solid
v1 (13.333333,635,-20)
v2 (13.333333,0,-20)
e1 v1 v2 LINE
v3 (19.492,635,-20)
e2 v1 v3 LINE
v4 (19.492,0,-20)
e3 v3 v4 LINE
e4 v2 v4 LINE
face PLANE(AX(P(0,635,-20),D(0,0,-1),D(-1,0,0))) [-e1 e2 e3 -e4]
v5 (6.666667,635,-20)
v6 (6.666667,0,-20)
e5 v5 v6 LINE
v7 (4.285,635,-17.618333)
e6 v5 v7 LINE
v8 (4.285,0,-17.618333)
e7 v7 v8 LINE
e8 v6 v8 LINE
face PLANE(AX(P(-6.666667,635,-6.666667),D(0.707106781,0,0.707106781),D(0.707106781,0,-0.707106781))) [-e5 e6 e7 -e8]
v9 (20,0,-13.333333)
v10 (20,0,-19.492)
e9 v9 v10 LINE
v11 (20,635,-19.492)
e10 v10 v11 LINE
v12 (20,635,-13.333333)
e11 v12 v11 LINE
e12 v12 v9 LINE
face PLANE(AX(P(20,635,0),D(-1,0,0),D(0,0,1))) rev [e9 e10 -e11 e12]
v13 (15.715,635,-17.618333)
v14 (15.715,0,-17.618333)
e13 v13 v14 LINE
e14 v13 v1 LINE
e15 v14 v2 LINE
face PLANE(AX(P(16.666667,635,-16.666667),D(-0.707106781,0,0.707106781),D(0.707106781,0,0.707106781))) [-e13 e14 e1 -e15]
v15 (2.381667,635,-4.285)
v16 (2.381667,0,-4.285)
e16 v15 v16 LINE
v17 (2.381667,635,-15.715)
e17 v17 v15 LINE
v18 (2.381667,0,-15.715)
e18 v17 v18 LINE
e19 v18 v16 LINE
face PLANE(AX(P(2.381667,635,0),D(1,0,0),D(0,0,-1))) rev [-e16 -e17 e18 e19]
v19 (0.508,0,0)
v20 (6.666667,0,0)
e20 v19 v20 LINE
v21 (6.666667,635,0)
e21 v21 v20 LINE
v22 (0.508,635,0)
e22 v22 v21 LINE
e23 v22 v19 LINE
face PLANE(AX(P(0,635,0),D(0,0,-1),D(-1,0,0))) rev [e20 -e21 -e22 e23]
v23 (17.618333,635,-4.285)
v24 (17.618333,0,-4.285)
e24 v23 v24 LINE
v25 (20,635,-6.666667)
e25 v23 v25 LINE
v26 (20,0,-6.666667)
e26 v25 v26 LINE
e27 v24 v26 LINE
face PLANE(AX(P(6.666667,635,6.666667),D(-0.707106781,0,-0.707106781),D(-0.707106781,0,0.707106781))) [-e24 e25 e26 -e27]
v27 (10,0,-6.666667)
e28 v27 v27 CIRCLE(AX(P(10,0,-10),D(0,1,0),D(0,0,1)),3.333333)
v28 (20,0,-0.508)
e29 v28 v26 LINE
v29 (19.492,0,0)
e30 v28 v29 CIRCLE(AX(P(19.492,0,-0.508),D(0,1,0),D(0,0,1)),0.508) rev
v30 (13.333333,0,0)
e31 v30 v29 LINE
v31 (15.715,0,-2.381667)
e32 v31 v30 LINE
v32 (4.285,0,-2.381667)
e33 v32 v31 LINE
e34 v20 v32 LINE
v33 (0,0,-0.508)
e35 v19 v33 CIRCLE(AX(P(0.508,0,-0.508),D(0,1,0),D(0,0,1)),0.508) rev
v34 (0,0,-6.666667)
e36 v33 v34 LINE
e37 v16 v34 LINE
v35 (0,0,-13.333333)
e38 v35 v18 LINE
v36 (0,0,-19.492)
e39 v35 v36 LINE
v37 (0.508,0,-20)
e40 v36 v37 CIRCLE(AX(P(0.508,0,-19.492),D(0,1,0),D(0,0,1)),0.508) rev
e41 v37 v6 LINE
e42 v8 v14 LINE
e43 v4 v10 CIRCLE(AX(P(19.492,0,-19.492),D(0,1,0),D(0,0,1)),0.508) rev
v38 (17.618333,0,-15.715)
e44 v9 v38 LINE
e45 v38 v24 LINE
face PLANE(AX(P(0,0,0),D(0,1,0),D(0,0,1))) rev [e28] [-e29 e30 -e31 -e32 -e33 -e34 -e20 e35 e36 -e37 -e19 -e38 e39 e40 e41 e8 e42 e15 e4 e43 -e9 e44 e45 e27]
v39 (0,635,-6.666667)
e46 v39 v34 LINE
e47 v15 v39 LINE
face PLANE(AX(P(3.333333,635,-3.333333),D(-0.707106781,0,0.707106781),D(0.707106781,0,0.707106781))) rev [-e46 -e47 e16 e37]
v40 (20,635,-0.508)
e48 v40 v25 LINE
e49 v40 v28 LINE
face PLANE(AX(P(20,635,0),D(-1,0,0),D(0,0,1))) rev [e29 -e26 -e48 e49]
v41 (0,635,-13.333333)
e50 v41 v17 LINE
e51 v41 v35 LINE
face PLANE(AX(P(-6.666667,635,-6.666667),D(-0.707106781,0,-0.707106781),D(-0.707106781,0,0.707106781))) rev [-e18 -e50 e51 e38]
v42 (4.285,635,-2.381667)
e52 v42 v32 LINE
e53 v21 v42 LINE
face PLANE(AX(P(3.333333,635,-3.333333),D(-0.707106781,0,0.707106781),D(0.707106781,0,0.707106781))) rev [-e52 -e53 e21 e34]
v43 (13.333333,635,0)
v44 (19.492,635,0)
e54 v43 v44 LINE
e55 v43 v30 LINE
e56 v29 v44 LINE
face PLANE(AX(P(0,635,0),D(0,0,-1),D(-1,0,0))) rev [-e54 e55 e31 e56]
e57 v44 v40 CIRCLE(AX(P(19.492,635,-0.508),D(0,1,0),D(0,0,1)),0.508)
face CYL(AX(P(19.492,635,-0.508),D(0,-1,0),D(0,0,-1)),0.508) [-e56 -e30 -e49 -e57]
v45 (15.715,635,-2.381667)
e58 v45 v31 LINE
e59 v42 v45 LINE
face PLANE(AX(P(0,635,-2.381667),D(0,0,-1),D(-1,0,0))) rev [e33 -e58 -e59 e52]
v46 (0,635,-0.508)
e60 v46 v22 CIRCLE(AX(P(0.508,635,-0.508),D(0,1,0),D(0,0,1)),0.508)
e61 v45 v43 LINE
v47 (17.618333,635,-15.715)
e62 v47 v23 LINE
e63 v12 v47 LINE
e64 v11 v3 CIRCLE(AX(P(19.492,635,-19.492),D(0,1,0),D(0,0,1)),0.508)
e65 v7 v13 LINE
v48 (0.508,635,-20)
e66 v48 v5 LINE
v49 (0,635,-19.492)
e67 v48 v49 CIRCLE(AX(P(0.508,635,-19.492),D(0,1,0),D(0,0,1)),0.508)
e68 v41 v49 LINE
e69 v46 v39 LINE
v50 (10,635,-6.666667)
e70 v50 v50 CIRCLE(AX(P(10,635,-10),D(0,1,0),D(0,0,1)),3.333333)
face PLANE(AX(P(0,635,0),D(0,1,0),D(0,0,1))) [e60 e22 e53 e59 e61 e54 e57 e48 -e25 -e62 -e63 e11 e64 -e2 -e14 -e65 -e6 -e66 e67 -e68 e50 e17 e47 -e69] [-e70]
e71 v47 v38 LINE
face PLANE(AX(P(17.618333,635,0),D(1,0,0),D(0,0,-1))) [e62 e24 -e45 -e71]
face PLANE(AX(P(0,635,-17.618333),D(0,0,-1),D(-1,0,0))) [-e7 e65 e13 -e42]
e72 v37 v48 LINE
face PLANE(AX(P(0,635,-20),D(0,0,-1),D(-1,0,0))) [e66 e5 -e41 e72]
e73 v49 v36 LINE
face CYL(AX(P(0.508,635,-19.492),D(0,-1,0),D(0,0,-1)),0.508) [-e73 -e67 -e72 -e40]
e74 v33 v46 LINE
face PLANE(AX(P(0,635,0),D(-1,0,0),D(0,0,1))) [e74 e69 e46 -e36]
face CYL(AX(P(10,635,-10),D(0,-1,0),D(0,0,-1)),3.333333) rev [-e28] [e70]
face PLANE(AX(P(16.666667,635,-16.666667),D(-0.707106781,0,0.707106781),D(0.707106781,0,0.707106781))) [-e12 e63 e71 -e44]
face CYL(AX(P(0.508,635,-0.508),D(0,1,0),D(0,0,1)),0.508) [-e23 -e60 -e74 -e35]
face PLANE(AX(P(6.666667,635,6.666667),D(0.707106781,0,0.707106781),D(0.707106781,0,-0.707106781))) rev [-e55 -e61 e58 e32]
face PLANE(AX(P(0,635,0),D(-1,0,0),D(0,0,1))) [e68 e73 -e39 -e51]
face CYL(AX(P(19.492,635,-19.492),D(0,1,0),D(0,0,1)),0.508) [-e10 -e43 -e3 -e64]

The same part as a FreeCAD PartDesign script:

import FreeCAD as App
import Part
import Sketcher
from FreeCAD import Vector
Q = App.Units.Quantity


def edges_at(feature, points):
    """Names of the edges that pass closest to the given points."""
    edges = feature.Shape.Edges
    near = lambda p: min(range(len(edges)), key=lambda i: edges[i].distToShape(Part.Vertex(*p))[0])
    return sorted({f"Edge{near(p) + 1}" for p in points})

doc = App.newDocument("Part")
body = doc.addObject("PartDesign::Body", "Body")

# Sketch on XZ plane
sketch1 = body.newObject("Sketcher::SketchObject", "Sketch")
sketch1.AttachmentSupport = (doc.getObject("XZ_Plane"), [""])
sketch1.MapMode = "FlatFace"
sketch1.addGeometry([
    Part.LineSegment(Vector(4.3, -17.6, 0), Vector(6.7, -20, 0)),  # 0
    Part.LineSegment(Vector(6.7, -20, 0), Vector(0, -20, 0)),  # 1
    Part.LineSegment(Vector(0, -20, 0), Vector(0, -13.3, 0)),  # 2
    Part.LineSegment(Vector(0, -13.3, 0), Vector(2.4, -15.7, 0)),  # 3
    Part.LineSegment(Vector(2.4, -15.7, 0), Vector(2.4, -4.3, 0)),  # 4
    Part.LineSegment(Vector(2.4, -4.3, 0), Vector(0, -6.7, 0)),  # 5
    Part.LineSegment(Vector(0, -6.7, 0), Vector(0, 0, 0)),  # 6
    Part.LineSegment(Vector(0, 0, 0), Vector(6.7, 0, 0)),  # 7
    Part.LineSegment(Vector(6.7, 0, 0), Vector(4.3, -2.4, 0)),  # 8
    Part.LineSegment(Vector(4.3, -2.4, 0), Vector(15.7, -2.4, 0)),  # 9
    Part.LineSegment(Vector(15.7, -2.4, 0), Vector(13.3, 0, 0)),  # 10
    Part.LineSegment(Vector(13.3, 0, 0), Vector(20, 0, 0)),  # 11
    Part.LineSegment(Vector(20, 0, 0), Vector(20, -6.7, 0)),  # 12
    Part.LineSegment(Vector(20, -6.7, 0), Vector(17.6, -4.3, 0)),  # 13
    Part.LineSegment(Vector(17.6, -4.3, 0), Vector(17.6, -15.7, 0)),  # 14
    Part.LineSegment(Vector(17.6, -15.7, 0), Vector(20, -13.3, 0)),  # 15
    Part.LineSegment(Vector(20, -13.3, 0), Vector(20, -20, 0)),  # 16
    Part.LineSegment(Vector(20, -20, 0), Vector(13.3, -20, 0)),  # 17
    Part.LineSegment(Vector(13.3, -20, 0), Vector(15.7, -17.6, 0)),  # 18
    Part.LineSegment(Vector(15.7, -17.6, 0), Vector(4.3, -17.6, 0)),  # 19
    Part.Circle(Vector(10, -10, 0), Vector(0, 0, 1), 3.3),  # 20
], False)
sketch1.addConstraint([
    Sketcher.Constraint("Coincident", 0, 2, 1, 1),
    Sketcher.Constraint("Coincident", 1, 2, 2, 1),
    Sketcher.Constraint("Coincident", 2, 2, 3, 1),
    Sketcher.Constraint("Coincident", 3, 2, 4, 1),
    Sketcher.Constraint("Coincident", 4, 2, 5, 1),
    Sketcher.Constraint("Coincident", 5, 2, 6, 1),
    Sketcher.Constraint("Coincident", 6, 2, 7, 1),
    Sketcher.Constraint("Coincident", 7, 2, 8, 1),
    Sketcher.Constraint("Coincident", 8, 2, 9, 1),
    Sketcher.Constraint("Coincident", 9, 2, 10, 1),
    Sketcher.Constraint("Coincident", 10, 2, 11, 1),
    Sketcher.Constraint("Coincident", 11, 2, 12, 1),
    Sketcher.Constraint("Coincident", 12, 2, 13, 1),
    Sketcher.Constraint("Coincident", 13, 2, 14, 1),
    Sketcher.Constraint("Coincident", 14, 2, 15, 1),
    Sketcher.Constraint("Coincident", 15, 2, 16, 1),
    Sketcher.Constraint("Coincident", 16, 2, 17, 1),
    Sketcher.Constraint("Coincident", 17, 2, 18, 1),
    Sketcher.Constraint("Coincident", 18, 2, 19, 1),
    Sketcher.Constraint("Coincident", 19, 2, 0, 1),
    Sketcher.Constraint("Horizontal", 1),
    Sketcher.Constraint("Vertical", 2),
    Sketcher.Constraint("Vertical", 4),
    Sketcher.Constraint("Vertical", 6),
    Sketcher.Constraint("Horizontal", 7),
    Sketcher.Constraint("Horizontal", 9),
    Sketcher.Constraint("Horizontal", 11),
    Sketcher.Constraint("Vertical", 12),
    Sketcher.Constraint("Vertical", 14),
    Sketcher.Constraint("Vertical", 16),
    Sketcher.Constraint("Horizontal", 17),
    Sketcher.Constraint("Horizontal", 19),
    Sketcher.Constraint("Coincident", 6, 2, -1, 1),
    Sketcher.Constraint("PointOnObject", 1, 2, -2),
    Sketcher.Constraint("PointOnObject", 10, 2, -1),
    Sketcher.Constraint("Parallel", 0, 3),
    Sketcher.Constraint("Perpendicular", 3, 5),
    Sketcher.Constraint("Parallel", 5, 8),
    Sketcher.Constraint("Perpendicular", 8, 10),
    Sketcher.Constraint("Parallel", 10, 13),
    Sketcher.Constraint("Perpendicular", 13, 15),
    Sketcher.Constraint("Parallel", 15, 18),
    Sketcher.Constraint("Horizontal", 5, 2, 12, 2),
    Sketcher.Constraint("Horizontal", 4, 2, 13, 2),
    Sketcher.Constraint("Horizontal", 3, 2, 14, 2),
    Sketcher.Constraint("Horizontal", 2, 2, 15, 2),
    Sketcher.Constraint("Horizontal", 1, 2, 16, 2),
    Sketcher.Constraint("Vertical", 0, 2, 7, 2),
    Sketcher.Constraint("Vertical", 12, 2, 15, 2),
    Sketcher.Constraint("Vertical", 10, 2, 17, 2),
    Sketcher.Constraint("Vertical", 9, 2, 18, 2),
    Sketcher.Constraint("Equal", 7, 11),
    Sketcher.Constraint("Equal", 17, 2),
    Sketcher.Constraint("Equal", 19, 4),
    Sketcher.Constraint("Equal", 2, 6),
    Sketcher.Constraint("Equal", 0, 3),
    Sketcher.Constraint("DistanceX", 9, 1, 9, 2, Q("0.45 in")),
    Sketcher.Constraint("DistanceY", 3, 2, 20, 3, Q("0.225 in")),
    Sketcher.Constraint("DistanceX", 8, 2, 20, 3, Q("0.225 in")),
    Sketcher.Constraint("Diameter", 20, 6.666667),
    Sketcher.Constraint("DistanceX", -1, 1, 20, 3, 10.0),
    Sketcher.Constraint("DistanceX", 1, 2, 1, 1, 6.666667),
])
pad1 = body.newObject("PartDesign::Pad", "Pad")
pad1.Profile = sketch1
pad1.Length = Q("25 in")
pad1.Reversed = True
doc.recompute()

fillet = body.newObject("PartDesign::Fillet", "Fillet")
fillet.Base = (pad1, edges_at(pad1, [
    (20, 317.5, 0),
    (0, 317.5, 0),
    (0, 317.5, -20),
    (20, 317.5, -20),
]))
fillet.Radius = Q("0.02 in")

doc.recompute()
